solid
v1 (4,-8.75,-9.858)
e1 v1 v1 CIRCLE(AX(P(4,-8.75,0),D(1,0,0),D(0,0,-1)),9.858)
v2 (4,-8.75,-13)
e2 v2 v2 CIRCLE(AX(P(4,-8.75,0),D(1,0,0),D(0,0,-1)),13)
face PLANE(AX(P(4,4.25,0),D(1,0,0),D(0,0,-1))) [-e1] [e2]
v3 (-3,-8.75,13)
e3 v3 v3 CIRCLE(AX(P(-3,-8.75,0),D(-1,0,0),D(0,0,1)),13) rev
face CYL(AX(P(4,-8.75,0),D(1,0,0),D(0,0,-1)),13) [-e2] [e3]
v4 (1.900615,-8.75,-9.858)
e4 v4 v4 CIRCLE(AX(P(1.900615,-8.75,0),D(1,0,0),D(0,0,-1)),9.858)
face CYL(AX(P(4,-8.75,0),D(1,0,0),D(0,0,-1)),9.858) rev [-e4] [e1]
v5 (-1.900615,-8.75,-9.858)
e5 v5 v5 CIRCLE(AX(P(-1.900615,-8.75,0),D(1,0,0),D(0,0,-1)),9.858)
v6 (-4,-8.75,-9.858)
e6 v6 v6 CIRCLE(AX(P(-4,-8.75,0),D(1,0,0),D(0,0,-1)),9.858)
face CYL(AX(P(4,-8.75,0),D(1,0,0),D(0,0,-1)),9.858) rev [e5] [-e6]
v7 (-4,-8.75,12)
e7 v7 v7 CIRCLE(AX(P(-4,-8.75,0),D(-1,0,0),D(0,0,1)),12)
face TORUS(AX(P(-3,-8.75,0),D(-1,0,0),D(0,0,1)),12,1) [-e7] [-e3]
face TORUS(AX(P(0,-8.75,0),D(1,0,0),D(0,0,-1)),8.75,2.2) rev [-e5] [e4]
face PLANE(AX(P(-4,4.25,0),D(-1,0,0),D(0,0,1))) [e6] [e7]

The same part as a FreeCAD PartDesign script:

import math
import FreeCAD as App
import Part
import Sketcher

V = App.Vector
Q = App.Units.Quantity


def edges_at(feature, points):
    """Names of the edges that pass closest to the given points."""
    edges = feature.Shape.Edges
    near = lambda p: min(range(len(edges)), key=lambda i: edges[i].distToShape(Part.Vertex(*p))[0])
    return sorted({f"Edge{near(p) + 1}" for p in points})

doc = App.newDocument("Part")
body = doc.addObject("PartDesign::Body", "Body")

# Sketch on XY plane
sketch1 = doc.addObject("Sketcher::SketchObject", "Sketch")
body.addObject(sketch1)
sketch1.AttachmentSupport = (doc.XY_Plane, [""])
sketch1.MapMode = "FlatFace"
sketch1.addGeometry([
    Part.LineSegment(V(4, 1.1, 0), V(4, 4.2, 0)),  # 0
    Part.LineSegment(V(4, 4.2, 0), V(-4, 4.2, 0)),  # 1
    Part.LineSegment(V(-4, 4.2, 0), V(-4, 1.1, 0)),  # 2
    Part.LineSegment(V(-4, 1.1, 0), V(-1.9, 1.1, 0)),  # 3
    Part.ArcOfCircle(Part.Circle(V(0, 0, 0), V(0, 0, 1), 2.2), math.radians(30), math.radians(150)),  # 4
    Part.LineSegment(V(1.9, 1.1, 0), V(4, 1.1, 0)),  # 5
], False)
sketch1.addGeometry(Part.LineSegment(V(4, -8.8, 0), V(-4, -8.8, 0)), True)  # axis
sketch1.addConstraint([
    Sketcher.Constraint("Coincident", 0, 2, 1, 1),
    Sketcher.Constraint("Coincident", 1, 2, 2, 1),
    Sketcher.Constraint("Coincident", 2, 2, 3, 1),
    Sketcher.Constraint("Coincident", 3, 2, 4, 2),
    Sketcher.Constraint("Coincident", 4, 1, 5, 1),
    Sketcher.Constraint("Coincident", 5, 2, 0, 1),
    Sketcher.Constraint("Vertical", 0),
    Sketcher.Constraint("Horizontal", 1),
    Sketcher.Constraint("Vertical", 2),
    Sketcher.Constraint("Horizontal", 3),
    Sketcher.Constraint("Horizontal", 5),
    Sketcher.Constraint("Horizontal", 6),
    Sketcher.Constraint("Coincident", 4, 3, -1, 1),
    Sketcher.Constraint("Symmetric", 2, 2, 5, 2, -2),
    Sketcher.Constraint("Vertical", 5, 2, 6, 1),
    Sketcher.Constraint("Vertical", 2, 2, 6, 2),
    Sketcher.Constraint("Radius", 4, Q("2.2 mm")),
    Sketcher.Constraint("DistanceX", 1, 2, 1, 1, Q("8 mm")),
    Sketcher.Constraint("DistanceY", 0, 1, 0, 2, Q("3.142 mm")),
    Sketcher.Constraint("DistanceY", -1, 1, 0, 2, Q("4.25 mm")),
    Sketcher.Constraint("DistanceY", 6, 1, -1, 1, Q("8.75 mm")),
])
revolution = doc.addObject("PartDesign::Revolution", "Revolution")
body.addObject(revolution)
revolution.Profile = sketch1
revolution.ReferenceAxis = (sketch1, ["Axis0"])
revolution.Angle = 360
doc.recompute()

fillet = doc.addObject("PartDesign::Fillet", "Fillet")
body.addObject(fillet)
fillet.Base = (revolution, edges_at(revolution, [(-4, -8.75, 13)]))
fillet.Radius = 1

doc.recompute()
